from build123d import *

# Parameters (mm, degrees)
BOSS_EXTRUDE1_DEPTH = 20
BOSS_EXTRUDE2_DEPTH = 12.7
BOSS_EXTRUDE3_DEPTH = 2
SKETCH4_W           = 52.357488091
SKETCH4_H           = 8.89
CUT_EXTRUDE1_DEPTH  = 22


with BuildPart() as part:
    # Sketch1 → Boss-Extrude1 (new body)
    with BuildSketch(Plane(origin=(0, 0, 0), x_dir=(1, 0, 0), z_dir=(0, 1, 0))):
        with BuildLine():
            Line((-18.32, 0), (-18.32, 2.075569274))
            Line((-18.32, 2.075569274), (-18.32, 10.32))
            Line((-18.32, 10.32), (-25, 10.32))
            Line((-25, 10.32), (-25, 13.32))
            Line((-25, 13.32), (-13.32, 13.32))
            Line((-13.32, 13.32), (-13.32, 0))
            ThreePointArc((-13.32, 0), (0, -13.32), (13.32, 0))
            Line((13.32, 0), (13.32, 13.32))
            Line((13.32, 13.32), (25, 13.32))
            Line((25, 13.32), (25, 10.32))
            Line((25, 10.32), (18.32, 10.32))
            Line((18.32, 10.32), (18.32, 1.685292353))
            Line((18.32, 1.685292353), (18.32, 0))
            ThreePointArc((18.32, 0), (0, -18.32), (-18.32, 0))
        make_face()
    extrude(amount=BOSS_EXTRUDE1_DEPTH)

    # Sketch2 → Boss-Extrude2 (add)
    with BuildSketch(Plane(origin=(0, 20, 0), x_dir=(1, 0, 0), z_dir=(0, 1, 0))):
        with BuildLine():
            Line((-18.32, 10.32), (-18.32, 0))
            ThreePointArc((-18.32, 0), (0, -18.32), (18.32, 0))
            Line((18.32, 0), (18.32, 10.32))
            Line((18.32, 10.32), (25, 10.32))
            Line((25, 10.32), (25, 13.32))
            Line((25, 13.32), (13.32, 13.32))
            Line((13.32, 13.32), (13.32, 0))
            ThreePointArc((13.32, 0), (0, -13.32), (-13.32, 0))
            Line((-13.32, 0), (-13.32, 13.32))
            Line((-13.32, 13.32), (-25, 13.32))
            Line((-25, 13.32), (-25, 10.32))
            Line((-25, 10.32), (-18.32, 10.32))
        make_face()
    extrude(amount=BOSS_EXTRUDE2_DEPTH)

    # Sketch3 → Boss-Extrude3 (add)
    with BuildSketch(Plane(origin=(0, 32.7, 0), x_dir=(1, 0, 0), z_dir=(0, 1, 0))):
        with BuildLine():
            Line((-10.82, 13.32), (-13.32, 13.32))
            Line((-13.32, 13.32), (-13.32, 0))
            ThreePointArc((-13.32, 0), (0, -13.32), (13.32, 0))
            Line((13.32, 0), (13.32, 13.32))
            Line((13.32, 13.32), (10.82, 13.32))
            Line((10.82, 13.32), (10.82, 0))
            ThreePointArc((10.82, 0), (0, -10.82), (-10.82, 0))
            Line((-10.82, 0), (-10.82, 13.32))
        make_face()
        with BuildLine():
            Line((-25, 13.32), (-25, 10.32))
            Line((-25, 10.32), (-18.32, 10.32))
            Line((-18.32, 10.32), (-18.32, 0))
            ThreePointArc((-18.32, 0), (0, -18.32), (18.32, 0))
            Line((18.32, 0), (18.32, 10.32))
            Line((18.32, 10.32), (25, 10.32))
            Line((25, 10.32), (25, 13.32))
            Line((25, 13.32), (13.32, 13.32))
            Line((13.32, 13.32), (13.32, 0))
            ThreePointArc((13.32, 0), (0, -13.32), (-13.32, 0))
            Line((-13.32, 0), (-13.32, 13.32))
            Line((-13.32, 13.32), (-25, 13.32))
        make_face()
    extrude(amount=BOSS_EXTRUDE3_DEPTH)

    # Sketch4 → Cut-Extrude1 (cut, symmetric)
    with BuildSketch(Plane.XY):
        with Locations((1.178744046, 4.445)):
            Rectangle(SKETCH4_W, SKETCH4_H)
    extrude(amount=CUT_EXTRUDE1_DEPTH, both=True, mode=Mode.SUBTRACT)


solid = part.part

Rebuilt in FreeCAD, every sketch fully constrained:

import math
import FreeCAD as App
import Part
import Sketcher
from FreeCAD import Vector
Q = App.Units.Quantity


def add_polygon(sketch, points):
    """Adds a closed chain of lines whose ends are joined by coincident constraints."""
    first, n = sketch.GeometryCount, len(points)
    for a, b in zip(points, points[1:] + points[:1]):
        sketch.addGeometry(Part.LineSegment(App.Vector(*a, 0), App.Vector(*b, 0)), False)
    for i in range(n):
        sketch.addConstraint(Sketcher.Constraint("Coincident", first + i, 2, first + (i + 1) % n, 1))

doc = App.newDocument("Part")
body = doc.addObject("PartDesign::Body", "Body")

sketch1 = body.newObject("Sketcher::SketchObject", "Sketch")
sketch1.AttachmentSupport = (doc.getObject("XZ_Plane"), [""])
sketch1.MapMode = "FlatFace"
sketch1.addGeometry([
    Part.LineSegment(Vector(-18.3, -10.3, 0), Vector(-18.3, 0, 0)),
    Part.ArcOfCircle(Part.Circle(Vector(0, 0, 0), Vector(0, 0, 1), 18.3), math.radians(0), math.radians(180)),
    Part.LineSegment(Vector(18.3, 0, 0), Vector(18.3, -10.3, 0)),
    Part.LineSegment(Vector(18.3, -10.3, 0), Vector(25, -10.3, 0)),
    Part.LineSegment(Vector(25, -10.3, 0), Vector(25, -13.3, 0)),
    Part.LineSegment(Vector(25, -13.3, 0), Vector(13.3, -13.3, 0)),
    Part.LineSegment(Vector(13.3, -13.3, 0), Vector(13.3, 0, 0)),
    Part.ArcOfCircle(Part.Circle(Vector(0, 0, 0), Vector(0, 0, 1), 13.3), math.radians(0), math.radians(180)),
    Part.LineSegment(Vector(-13.3, 0, 0), Vector(-13.3, -13.3, 0)),
    Part.LineSegment(Vector(-13.3, -13.3, 0), Vector(-25, -13.3, 0)),
    Part.LineSegment(Vector(-25, -13.3, 0), Vector(-25, -10.3, 0)),
    Part.LineSegment(Vector(-25, -10.3, 0), Vector(-18.3, -10.3, 0)),
], False)
sketch1.addConstraint([
    Sketcher.Constraint("Tangent", 0, 2, 1, 2),
    Sketcher.Constraint("Tangent", 1, 1, 2, 1),
    Sketcher.Constraint("Coincident", 2, 2, 3, 1),
    Sketcher.Constraint("Coincident", 3, 2, 4, 1),
    Sketcher.Constraint("Coincident", 4, 2, 5, 1),
    Sketcher.Constraint("Coincident", 5, 2, 6, 1),
    Sketcher.Constraint("Tangent", 6, 2, 7, 1),
    Sketcher.Constraint("Tangent", 7, 2, 8, 1),
    Sketcher.Constraint("Coincident", 8, 2, 9, 1),
    Sketcher.Constraint("Coincident", 9, 2, 10, 1),
    Sketcher.Constraint("Coincident", 10, 2, 11, 1),
    Sketcher.Constraint("Coincident", 11, 2, 0, 1),
    Sketcher.Constraint("Vertical", 0),
    Sketcher.Constraint("Vertical", 2),
    Sketcher.Constraint("Horizontal", 3),
    Sketcher.Constraint("Vertical", 4),
    Sketcher.Constraint("Horizontal", 5),
    Sketcher.Constraint("Vertical", 6),
    Sketcher.Constraint("Vertical", 8),
    Sketcher.Constraint("Horizontal", 9),
    Sketcher.Constraint("Vertical", 10),
    Sketcher.Constraint("Horizontal", 11),
    Sketcher.Constraint("Coincident", 1, 3, -1, 1),
    Sketcher.Constraint("Coincident", 7, 3, -1, 1),
    Sketcher.Constraint("Symmetric", 4, 2, 9, 2, -2),
    Sketcher.Constraint("Horizontal", 3, 2, 10, 2),
    Sketcher.Constraint("DistanceY", 4, 2, 4, 1, Q("3 mm")),
    Sketcher.Constraint("Radius", 1, Q("18.32 mm")),
    Sketcher.Constraint("Radius", 7, Q("13.32 mm")),
    Sketcher.Constraint("DistanceX", -1, 1, 3, 2, Q("25 mm")),
    Sketcher.Constraint("DistanceY", 0, 1, 0, 2, Q("10.32 mm")),
])
pad1 = body.newObject("PartDesign::Pad", "Pad")
pad1.Profile = sketch1
pad1.Length = 20
pad1.Reversed = True

sketch2 = body.newObject("Sketcher::SketchObject", "Sketch001")
sketch2.AttachmentSupport = (doc.getObject("XZ_Plane"), [""])
sketch2.MapMode = "FlatFace"
sketch2.AttachmentOffset = App.Placement(Vector(0, 0, -20), App.Rotation())
sketch2.addGeometry([
    Part.LineSegment(Vector(-18.3, -10.3, 0), Vector(-18.3, 0, 0)),
    Part.ArcOfCircle(Part.Circle(Vector(0, 0, 0), Vector(0, 0, 1), 18.3), math.radians(0), math.radians(180)),
    Part.LineSegment(Vector(18.3, 0, 0), Vector(18.3, -10.3, 0)),
    Part.LineSegment(Vector(18.3, -10.3, 0), Vector(25, -10.3, 0)),
    Part.LineSegment(Vector(25, -10.3, 0), Vector(25, -13.3, 0)),
    Part.LineSegment(Vector(25, -13.3, 0), Vector(13.3, -13.3, 0)),
    Part.LineSegment(Vector(13.3, -13.3, 0), Vector(13.3, 0, 0)),
    Part.ArcOfCircle(Part.Circle(Vector(0, 0, 0), Vector(0, 0, 1), 13.3), math.radians(0), math.radians(180)),
    Part.LineSegment(Vector(-13.3, 0, 0), Vector(-13.3, -13.3, 0)),
    Part.LineSegment(Vector(-13.3, -13.3, 0), Vector(-25, -13.3, 0)),
    Part.LineSegment(Vector(-25, -13.3, 0), Vector(-25, -10.3, 0)),
    Part.LineSegment(Vector(-25, -10.3, 0), Vector(-18.3, -10.3, 0)),
], False)
sketch2.addConstraint([
    Sketcher.Constraint("Tangent", 0, 2, 1, 2),
    Sketcher.Constraint("Tangent", 1, 1, 2, 1),
    Sketcher.Constraint("Coincident", 2, 2, 3, 1),
    Sketcher.Constraint("Coincident", 3, 2, 4, 1),
    Sketcher.Constraint("Coincident", 4, 2, 5, 1),
    Sketcher.Constraint("Coincident", 5, 2, 6, 1),
    Sketcher.Constraint("Tangent", 6, 2, 7, 1),
    Sketcher.Constraint("Tangent", 7, 2, 8, 1),
    Sketcher.Constraint("Coincident", 8, 2, 9, 1),
    Sketcher.Constraint("Coincident", 9, 2, 10, 1),
    Sketcher.Constraint("Coincident", 10, 2, 11, 1),
    Sketcher.Constraint("Coincident", 11, 2, 0, 1),
    Sketcher.Constraint("Vertical", 0),
    Sketcher.Constraint("Vertical", 2),
    Sketcher.Constraint("Horizontal", 3),
    Sketcher.Constraint("Vertical", 4),
    Sketcher.Constraint("Horizontal", 5),
    Sketcher.Constraint("Vertical", 6),
    Sketcher.Constraint("Vertical", 8),
    Sketcher.Constraint("Horizontal", 9),
    Sketcher.Constraint("Vertical", 10),
    Sketcher.Constraint("Horizontal", 11),
    Sketcher.Constraint("Coincident", 1, 3, -1, 1),
    Sketcher.Constraint("Coincident", 7, 3, -1, 1),
    Sketcher.Constraint("Symmetric", 4, 2, 9, 2, -2),
    Sketcher.Constraint("Horizontal", 3, 2, 10, 2),
    Sketcher.Constraint("DistanceY", 4, 2, 4, 1, Q("3 mm")),
    Sketcher.Constraint("Radius", 1, Q("18.32 mm")),
    Sketcher.Constraint("Radius", 7, Q("13.32 mm")),
    Sketcher.Constraint("DistanceX", -1, 1, 3, 2, Q("25 mm")),
    Sketcher.Constraint("DistanceY", 0, 1, 0, 2, Q("10.32 mm")),
])
pad2 = body.newObject("PartDesign::Pad", "Pad001")
pad2.Profile = sketch2
pad2.Length = 12.7
pad2.Reversed = True

sketch3 = body.newObject("Sketcher::SketchObject", "Sketch002")
sketch3.AttachmentSupport = (doc.getObject("XZ_Plane"), [""])
sketch3.MapMode = "FlatFace"
sketch3.AttachmentOffset = App.Placement(Vector(0, 0, -32.7), App.Rotation())
sketch3.addGeometry([
    Part.LineSegment(Vector(-10.8, -13.3, 0), Vector(-25, -13.3, 0)),
    Part.LineSegment(Vector(-25, -13.3, 0), Vector(-25, -10.3, 0)),
    Part.LineSegment(Vector(-25, -10.3, 0), Vector(-18.3, -10.3, 0)),
    Part.LineSegment(Vector(-18.3, -10.3, 0), Vector(-18.3, 0, 0)),
    Part.ArcOfCircle(Part.Circle(Vector(0, 0, 0), Vector(0, 0, 1), 18.3), math.radians(0), math.radians(180)),
    Part.LineSegment(Vector(18.3, 0, 0), Vector(18.3, -10.3, 0)),
    Part.LineSegment(Vector(18.3, -10.3, 0), Vector(25, -10.3, 0)),
    Part.LineSegment(Vector(25, -10.3, 0), Vector(25, -13.3, 0)),
    Part.LineSegment(Vector(25, -13.3, 0), Vector(10.8, -13.3, 0)),
    Part.LineSegment(Vector(10.8, -13.3, 0), Vector(10.8, 0, 0)),
    Part.ArcOfCircle(Part.Circle(Vector(0, 0, 0), Vector(0, 0, 1), 10.8), math.radians(0), math.radians(180)),
    Part.LineSegment(Vector(-10.8, 0, 0), Vector(-10.8, -13.3, 0)),
], False)
sketch3.addConstraint([
    Sketcher.Constraint("Coincident", 0, 2, 1, 1),
    Sketcher.Constraint("Coincident", 1, 2, 2, 1),
    Sketcher.Constraint("Coincident", 2, 2, 3, 1),
    Sketcher.Constraint("Tangent", 3, 2, 4, 2),
    Sketcher.Constraint("Tangent", 4, 1, 5, 1),
    Sketcher.Constraint("Coincident", 5, 2, 6, 1),
    Sketcher.Constraint("Coincident", 6, 2, 7, 1),
    Sketcher.Constraint("Coincident", 7, 2, 8, 1),
    Sketcher.Constraint("Coincident", 8, 2, 9, 1),
    Sketcher.Constraint("Tangent", 9, 2, 10, 1),
    Sketcher.Constraint("Tangent", 10, 2, 11, 1),
    Sketcher.Constraint("Coincident", 11, 2, 0, 1),
    Sketcher.Constraint("Horizontal", 0),
    Sketcher.Constraint("Vertical", 1),
    Sketcher.Constraint("Horizontal", 2),
    Sketcher.Constraint("Vertical", 3),
    Sketcher.Constraint("Vertical", 5),
    Sketcher.Constraint("Horizontal", 6),
    Sketcher.Constraint("Vertical", 7),
    Sketcher.Constraint("Horizontal", 8),
    Sketcher.Constraint("Vertical", 9),
    Sketcher.Constraint("Vertical", 11),
    Sketcher.Constraint("Coincident", 4, 3, -1, 1),
    Sketcher.Constraint("Coincident", 10, 3, -1, 1),
    Sketcher.Constraint("Symmetric", 1, 2, 6, 2, -2),
    Sketcher.Constraint("Horizontal", 0, 2, 7, 2),
    Sketcher.Constraint("DistanceY", 1, 1, 1, 2, Q("3 mm")),
    Sketcher.Constraint("Radius", 4, Q("18.32 mm")),
    Sketcher.Constraint("Radius", 10, Q("10.82 mm")),
    Sketcher.Constraint("DistanceX", 0, 2, -1, 1, Q("25 mm")),
    Sketcher.Constraint("DistanceY", 3, 1, 3, 2, Q("10.32 mm")),
])
pad3 = body.newObject("PartDesign::Pad", "Pad002")
pad3.Profile = sketch3
pad3.Length = 2
pad3.Reversed = True

sketch4 = body.newObject("Sketcher::SketchObject", "Sketch003")
sketch4.AttachmentSupport = (doc.getObject("XY_Plane"), [""])
sketch4.MapMode = "FlatFace"
add_polygon(sketch4, [(-25, 9), (-25, 0), (27, 0), (27, 9)])
sketch4.addConstraint([
    Sketcher.Constraint("Vertical", 0),
    Sketcher.Constraint("Horizontal", 1),
    Sketcher.Constraint("Vertical", 2),
    Sketcher.Constraint("Horizontal", 3),
    Sketcher.Constraint("PointOnObject", 0, 2, -1),
    Sketcher.Constraint("DistanceX", 0, 2, -1, 1, Q("25 mm")),
    Sketcher.Constraint("DistanceY", 0, 2, 0, 1, Q("8.89 mm")),
    Sketcher.Constraint("DistanceX", 1, 1, 1, 2, Q("52.357488 mm")),
])
pocket1 = body.newObject("PartDesign::Pocket", "Pocket")
pocket1.Profile = sketch4
pocket1.Length = 44
pocket1.Midplane = True

doc.recompute()
